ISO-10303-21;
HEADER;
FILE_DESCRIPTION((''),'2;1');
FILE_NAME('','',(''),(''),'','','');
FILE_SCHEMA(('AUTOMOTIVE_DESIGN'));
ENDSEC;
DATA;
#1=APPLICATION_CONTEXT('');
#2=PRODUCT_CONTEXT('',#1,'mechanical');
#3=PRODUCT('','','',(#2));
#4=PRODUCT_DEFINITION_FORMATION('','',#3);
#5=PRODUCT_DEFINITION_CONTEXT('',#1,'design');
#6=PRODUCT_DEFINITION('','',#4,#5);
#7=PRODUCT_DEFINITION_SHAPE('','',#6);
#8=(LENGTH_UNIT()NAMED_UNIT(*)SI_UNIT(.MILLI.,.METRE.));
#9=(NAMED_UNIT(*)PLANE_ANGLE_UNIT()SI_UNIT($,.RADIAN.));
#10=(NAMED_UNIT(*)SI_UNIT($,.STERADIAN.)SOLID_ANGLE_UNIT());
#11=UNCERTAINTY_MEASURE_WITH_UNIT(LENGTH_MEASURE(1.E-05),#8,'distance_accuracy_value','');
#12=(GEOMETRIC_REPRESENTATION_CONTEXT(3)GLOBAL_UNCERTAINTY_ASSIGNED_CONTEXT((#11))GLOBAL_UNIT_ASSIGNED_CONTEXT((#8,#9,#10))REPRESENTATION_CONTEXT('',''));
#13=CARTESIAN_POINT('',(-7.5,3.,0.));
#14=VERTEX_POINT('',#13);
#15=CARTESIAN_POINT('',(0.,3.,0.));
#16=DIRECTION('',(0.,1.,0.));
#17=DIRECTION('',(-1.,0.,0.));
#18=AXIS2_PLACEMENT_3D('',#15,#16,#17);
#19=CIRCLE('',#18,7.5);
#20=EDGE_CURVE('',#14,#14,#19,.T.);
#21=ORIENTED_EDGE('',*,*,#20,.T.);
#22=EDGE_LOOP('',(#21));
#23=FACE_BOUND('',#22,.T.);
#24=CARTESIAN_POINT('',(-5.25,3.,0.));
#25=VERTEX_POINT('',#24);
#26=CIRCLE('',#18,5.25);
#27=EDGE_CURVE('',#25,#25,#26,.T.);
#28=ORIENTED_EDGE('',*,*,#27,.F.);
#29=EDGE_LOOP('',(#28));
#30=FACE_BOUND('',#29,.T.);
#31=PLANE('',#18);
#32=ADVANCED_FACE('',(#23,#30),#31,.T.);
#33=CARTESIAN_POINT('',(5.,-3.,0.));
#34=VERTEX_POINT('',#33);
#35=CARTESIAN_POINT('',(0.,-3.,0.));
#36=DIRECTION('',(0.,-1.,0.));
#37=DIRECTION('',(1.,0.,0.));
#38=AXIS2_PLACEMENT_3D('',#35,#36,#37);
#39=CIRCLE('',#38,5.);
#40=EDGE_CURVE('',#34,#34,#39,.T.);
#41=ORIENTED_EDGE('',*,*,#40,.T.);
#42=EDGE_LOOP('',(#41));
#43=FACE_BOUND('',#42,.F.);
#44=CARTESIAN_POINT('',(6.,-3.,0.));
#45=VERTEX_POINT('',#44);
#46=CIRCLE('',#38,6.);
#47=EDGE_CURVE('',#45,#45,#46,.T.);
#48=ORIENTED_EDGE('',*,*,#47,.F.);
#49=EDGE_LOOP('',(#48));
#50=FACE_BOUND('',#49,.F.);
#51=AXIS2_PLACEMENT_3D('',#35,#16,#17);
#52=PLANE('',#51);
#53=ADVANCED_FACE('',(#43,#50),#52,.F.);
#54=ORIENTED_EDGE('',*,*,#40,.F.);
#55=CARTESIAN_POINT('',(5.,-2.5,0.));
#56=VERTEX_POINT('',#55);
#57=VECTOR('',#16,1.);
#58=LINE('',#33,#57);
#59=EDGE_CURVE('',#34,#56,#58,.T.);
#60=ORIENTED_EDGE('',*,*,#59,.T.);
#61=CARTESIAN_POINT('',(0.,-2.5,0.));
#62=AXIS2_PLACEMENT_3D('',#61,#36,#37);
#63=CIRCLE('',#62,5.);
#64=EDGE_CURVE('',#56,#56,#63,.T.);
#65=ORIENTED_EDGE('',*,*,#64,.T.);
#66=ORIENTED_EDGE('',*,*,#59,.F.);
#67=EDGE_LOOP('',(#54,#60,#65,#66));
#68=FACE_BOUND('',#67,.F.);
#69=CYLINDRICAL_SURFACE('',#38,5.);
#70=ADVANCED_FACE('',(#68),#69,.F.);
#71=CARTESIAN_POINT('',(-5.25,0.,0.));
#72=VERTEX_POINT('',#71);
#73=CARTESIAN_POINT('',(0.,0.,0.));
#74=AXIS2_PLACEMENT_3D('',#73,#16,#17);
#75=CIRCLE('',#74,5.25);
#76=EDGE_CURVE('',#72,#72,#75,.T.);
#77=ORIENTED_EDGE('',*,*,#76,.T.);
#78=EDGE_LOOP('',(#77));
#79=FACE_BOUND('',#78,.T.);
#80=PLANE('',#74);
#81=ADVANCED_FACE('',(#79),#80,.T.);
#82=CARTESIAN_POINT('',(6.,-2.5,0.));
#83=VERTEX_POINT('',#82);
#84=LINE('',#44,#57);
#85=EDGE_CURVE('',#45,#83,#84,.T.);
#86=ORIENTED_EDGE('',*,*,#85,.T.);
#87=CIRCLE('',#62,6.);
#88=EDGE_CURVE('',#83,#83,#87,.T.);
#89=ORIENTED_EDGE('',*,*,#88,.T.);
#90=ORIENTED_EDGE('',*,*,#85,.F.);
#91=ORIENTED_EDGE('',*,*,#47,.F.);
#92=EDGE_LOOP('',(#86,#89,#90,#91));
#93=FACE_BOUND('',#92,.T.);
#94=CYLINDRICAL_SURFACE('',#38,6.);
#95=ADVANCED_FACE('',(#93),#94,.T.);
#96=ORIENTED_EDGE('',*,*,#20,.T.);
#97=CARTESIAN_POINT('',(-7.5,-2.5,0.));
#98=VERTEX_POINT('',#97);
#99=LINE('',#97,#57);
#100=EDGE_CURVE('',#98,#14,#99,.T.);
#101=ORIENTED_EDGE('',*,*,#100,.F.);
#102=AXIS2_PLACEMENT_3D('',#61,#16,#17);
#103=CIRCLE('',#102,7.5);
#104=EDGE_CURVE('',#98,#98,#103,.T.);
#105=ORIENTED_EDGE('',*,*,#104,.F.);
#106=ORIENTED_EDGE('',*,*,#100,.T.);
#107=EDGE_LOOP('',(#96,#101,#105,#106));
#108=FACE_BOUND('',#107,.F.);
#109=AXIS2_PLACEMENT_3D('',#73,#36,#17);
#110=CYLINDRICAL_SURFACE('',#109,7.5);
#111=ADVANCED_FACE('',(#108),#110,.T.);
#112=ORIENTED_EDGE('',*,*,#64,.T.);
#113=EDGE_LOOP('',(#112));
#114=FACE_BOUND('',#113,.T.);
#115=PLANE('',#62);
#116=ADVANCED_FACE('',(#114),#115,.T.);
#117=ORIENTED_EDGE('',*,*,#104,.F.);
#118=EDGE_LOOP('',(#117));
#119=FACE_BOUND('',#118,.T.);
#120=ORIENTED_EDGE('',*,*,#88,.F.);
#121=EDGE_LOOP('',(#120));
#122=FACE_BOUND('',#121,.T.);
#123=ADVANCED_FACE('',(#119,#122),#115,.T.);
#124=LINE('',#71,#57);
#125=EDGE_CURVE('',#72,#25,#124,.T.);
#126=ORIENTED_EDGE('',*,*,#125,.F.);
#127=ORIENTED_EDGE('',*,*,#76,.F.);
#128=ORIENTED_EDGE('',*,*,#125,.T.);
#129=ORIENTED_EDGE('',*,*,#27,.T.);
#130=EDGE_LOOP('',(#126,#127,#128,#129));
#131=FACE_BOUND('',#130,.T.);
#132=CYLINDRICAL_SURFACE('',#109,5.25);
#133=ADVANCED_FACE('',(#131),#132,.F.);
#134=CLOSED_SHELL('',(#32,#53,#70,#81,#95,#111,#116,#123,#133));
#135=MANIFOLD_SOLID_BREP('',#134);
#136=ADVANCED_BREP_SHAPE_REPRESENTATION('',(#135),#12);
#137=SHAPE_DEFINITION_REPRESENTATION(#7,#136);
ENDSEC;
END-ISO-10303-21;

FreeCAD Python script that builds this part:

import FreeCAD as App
import Part
import Sketcher

doc = App.newDocument("Part")
body = doc.addObject("PartDesign::Body", "Body")

# Sketch on XZ plane
sketch1 = body.newObject("Sketcher::SketchObject", "Sketch")
sketch1.AttachmentSupport = (doc.getObject("XZ_Plane"), [""])
sketch1.MapMode = "FlatFace"
sketch1.addGeometry(Part.Circle(App.Vector(0, 0, 0), App.Vector(0, 0, 1), 8), False)
sketch1.addConstraint([
    Sketcher.Constraint("Coincident", 0, 3, -1, 1),
    Sketcher.Constraint("Diameter", 0, 15.0),
])
pad1 = body.newObject("PartDesign::Pad", "Pad")
pad1.Profile = sketch1
pad1.Length = 3

# Sketch on XZ plane
sketch2 = body.newObject("Sketcher::SketchObject", "Sketch001")
sketch2.AttachmentSupport = (doc.getObject("XZ_Plane"), [""])
sketch2.MapMode = "FlatFace"
sketch2.addGeometry([
    Part.Circle(App.Vector(0, 0, 0), App.Vector(0, 0, 1), 8),
    Part.Circle(App.Vector(0, 0, 0), App.Vector(0, 0, 1), 5),
], False)
sketch2.addConstraint([
    Sketcher.Constraint("Coincident", 0, 3, -1, 1),
    Sketcher.Constraint("Coincident", 1, 3, -1, 1),
    Sketcher.Constraint("Diameter", 0, 15.0),
    Sketcher.Constraint("Diameter", 1, 10.5),
])
pad2 = body.newObject("PartDesign::Pad", "Pad001")
pad2.Profile = sketch2
pad2.Length = 3
pad2.Reversed = True

# Sketch on XZ plane
sketch3 = body.newObject("Sketcher::SketchObject", "Sketch002")
sketch3.AttachmentSupport = (doc.getObject("XZ_Plane"), [""])
sketch3.MapMode = "FlatFace"
sketch3.AttachmentOffset = App.Placement(App.Vector(0, 0, 3), App.Rotation())
sketch3.addGeometry([
    Part.Circle(App.Vector(0, 0, 0), App.Vector(0, 0, 1), 5),
    Part.Circle(App.Vector(0, 0, 0), App.Vector(0, 0, 1), 8),
    Part.Circle(App.Vector(0, 0, 0), App.Vector(0, 0, 1), 6),
], False)
sketch3.addConstraint([
    Sketcher.Constraint("Coincident", 0, 3, -1, 1),
    Sketcher.Constraint("Coincident", 1, 3, -1, 1),
    Sketcher.Constraint("Coincident", 2, 3, -1, 1),
    Sketcher.Constraint("Diameter", 0, 10.0),
    Sketcher.Constraint("Diameter", 2, 12.0),
    Sketcher.Constraint("Diameter", 1, 15.0),
])
pocket1 = body.newObject("PartDesign::Pocket", "Pocket")
pocket1.Profile = sketch3
pocket1.Length = 0.5

doc.recompute()
